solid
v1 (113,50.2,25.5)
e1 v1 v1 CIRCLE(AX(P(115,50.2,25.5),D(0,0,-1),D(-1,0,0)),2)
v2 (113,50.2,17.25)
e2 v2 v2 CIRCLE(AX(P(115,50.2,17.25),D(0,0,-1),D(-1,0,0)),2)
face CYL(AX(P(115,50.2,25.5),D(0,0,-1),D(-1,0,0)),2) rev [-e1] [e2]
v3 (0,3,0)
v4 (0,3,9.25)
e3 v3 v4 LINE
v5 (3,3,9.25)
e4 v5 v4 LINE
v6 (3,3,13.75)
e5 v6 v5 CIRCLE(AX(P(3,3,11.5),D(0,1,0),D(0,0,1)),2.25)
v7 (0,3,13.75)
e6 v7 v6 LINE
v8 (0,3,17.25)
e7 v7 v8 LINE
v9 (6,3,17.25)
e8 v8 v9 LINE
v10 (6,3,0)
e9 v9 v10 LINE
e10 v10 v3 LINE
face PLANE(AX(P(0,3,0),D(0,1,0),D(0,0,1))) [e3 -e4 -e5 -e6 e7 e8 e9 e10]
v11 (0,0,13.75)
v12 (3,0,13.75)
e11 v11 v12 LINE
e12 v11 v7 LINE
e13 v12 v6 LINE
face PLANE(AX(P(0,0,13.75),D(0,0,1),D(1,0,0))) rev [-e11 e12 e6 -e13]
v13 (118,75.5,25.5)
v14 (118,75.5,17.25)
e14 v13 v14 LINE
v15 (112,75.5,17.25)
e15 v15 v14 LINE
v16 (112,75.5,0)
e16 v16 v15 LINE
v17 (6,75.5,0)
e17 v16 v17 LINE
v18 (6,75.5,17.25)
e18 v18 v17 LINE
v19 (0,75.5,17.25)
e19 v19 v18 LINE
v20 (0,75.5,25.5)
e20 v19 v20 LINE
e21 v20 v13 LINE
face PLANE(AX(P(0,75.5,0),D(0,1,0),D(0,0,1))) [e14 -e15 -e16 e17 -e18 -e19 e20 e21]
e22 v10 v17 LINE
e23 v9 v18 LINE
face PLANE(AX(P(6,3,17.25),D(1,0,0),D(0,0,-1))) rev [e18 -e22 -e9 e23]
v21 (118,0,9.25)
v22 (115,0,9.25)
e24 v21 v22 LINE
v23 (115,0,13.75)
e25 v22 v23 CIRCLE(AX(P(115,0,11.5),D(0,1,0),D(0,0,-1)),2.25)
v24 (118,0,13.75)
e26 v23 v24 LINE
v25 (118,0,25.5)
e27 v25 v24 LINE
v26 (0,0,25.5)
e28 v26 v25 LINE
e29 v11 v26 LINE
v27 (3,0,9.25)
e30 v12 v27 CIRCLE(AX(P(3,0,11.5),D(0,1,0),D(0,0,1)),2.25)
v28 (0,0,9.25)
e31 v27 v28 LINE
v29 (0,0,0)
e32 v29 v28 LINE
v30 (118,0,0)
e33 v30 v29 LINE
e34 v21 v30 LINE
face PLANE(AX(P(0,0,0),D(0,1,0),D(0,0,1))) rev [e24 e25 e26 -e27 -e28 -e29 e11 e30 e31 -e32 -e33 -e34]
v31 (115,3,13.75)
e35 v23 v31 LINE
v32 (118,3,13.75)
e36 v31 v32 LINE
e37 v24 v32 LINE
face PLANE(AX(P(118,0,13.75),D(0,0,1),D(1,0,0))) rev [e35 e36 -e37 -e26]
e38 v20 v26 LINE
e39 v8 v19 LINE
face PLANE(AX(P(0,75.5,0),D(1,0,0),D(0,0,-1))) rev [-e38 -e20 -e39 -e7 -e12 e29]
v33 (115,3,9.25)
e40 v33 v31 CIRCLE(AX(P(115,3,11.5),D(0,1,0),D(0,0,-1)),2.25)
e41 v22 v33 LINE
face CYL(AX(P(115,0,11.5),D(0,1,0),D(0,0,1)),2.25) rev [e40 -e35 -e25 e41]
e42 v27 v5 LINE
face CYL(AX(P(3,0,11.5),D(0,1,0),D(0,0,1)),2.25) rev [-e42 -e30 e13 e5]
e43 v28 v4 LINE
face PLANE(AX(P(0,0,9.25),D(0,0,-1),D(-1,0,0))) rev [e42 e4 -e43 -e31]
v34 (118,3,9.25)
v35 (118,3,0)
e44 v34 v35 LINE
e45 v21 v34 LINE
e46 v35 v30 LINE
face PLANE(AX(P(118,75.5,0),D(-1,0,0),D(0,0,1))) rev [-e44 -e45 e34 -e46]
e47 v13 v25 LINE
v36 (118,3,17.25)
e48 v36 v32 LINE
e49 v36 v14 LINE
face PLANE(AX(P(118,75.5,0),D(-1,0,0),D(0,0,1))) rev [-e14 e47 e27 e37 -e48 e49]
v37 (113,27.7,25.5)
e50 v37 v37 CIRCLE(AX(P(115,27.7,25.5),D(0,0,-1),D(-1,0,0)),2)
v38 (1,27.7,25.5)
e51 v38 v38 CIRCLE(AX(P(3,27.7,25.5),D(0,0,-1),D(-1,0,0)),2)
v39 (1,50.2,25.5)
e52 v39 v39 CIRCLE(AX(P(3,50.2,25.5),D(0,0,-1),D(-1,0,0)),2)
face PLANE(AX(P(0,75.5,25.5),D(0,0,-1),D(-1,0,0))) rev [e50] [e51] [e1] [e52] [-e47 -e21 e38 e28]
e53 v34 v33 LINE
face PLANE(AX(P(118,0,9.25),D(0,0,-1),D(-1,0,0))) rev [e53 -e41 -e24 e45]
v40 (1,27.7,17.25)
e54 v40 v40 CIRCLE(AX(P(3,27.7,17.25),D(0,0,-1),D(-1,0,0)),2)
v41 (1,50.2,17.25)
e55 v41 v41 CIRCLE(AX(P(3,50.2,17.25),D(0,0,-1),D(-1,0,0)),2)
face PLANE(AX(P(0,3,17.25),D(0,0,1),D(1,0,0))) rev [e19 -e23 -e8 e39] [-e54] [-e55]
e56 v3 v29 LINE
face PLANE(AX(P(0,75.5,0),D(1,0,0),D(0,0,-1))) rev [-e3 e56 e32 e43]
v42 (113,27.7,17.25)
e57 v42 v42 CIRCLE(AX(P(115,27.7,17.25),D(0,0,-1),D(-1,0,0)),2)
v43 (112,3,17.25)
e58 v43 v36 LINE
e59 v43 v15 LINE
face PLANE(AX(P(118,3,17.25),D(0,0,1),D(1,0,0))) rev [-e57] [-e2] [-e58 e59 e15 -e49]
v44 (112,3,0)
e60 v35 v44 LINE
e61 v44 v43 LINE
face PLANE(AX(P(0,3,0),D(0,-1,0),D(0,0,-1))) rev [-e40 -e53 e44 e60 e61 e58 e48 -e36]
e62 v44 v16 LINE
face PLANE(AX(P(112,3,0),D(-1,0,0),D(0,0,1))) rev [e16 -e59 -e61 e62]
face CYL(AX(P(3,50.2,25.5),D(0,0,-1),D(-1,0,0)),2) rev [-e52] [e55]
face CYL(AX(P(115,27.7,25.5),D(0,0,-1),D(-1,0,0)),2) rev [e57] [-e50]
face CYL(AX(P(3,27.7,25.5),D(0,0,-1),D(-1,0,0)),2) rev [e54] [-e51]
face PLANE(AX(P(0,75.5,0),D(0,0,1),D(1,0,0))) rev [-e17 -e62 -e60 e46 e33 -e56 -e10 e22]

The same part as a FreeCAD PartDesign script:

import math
import FreeCAD as App
import Part
import Sketcher

V = App.Vector

doc = App.newDocument("Part")
params = doc.addObject("Spreadsheet::Sheet", "Params")
for row, (alias, value) in enumerate([
    ("sketch1_width", "118 mm"),
    ("sketch1_height", "25.5 mm"),
    ("pad1_length", "75.5 mm"),
    ("sketch2_width", "6 mm"),
    ("sketch2_height", "17.25 mm"),
    ("pocket1_length", "72.5 mm"),
    ("sketch3_width", "3 mm"),
    ("sketch3_radius", "2.25 mm"),
    ("sketch4_diameter", "4 mm"),
], start=1):
    params.set(f"A{row}", alias)
    params.set(f"B{row}", "=" + value)
    params.setAlias(f"B{row}", alias)

body = doc.addObject("PartDesign::Body", "Body")

# Sketch on XZ plane
sketch1 = body.newObject("Sketcher::SketchObject", "Sketch")
sketch1.AttachmentSupport = (doc.getObject("XZ_Plane"), [""])
sketch1.MapMode = "FlatFace"
sketch1.addGeometry(Part.LineSegment(V(0, 0, 0), V(0, 26, 0)), False)
sketch1.addGeometry(Part.LineSegment(V(0, 26, 0), V(118, 26, 0)), False)
sketch1.addGeometry(Part.LineSegment(V(118, 26, 0), V(118, 0, 0)), False)
sketch1.addGeometry(Part.LineSegment(V(118, 0, 0), V(0, 0, 0)), False)
sketch1.addConstraint(Sketcher.Constraint("Coincident", 0, 2, 1, 1))
sketch1.addConstraint(Sketcher.Constraint("Coincident", 1, 2, 2, 1))
sketch1.addConstraint(Sketcher.Constraint("Coincident", 2, 2, 3, 1))
sketch1.addConstraint(Sketcher.Constraint("Coincident", 3, 2, 0, 1))
sketch1.addConstraint(Sketcher.Constraint("Vertical", 0))
sketch1.addConstraint(Sketcher.Constraint("Horizontal", 1))
sketch1.addConstraint(Sketcher.Constraint("Vertical", 2))
sketch1.addConstraint(Sketcher.Constraint("Horizontal", 3))
sketch1.addConstraint(Sketcher.Constraint("Coincident", 3, 2, -1, 1))
sketch1.addConstraint(Sketcher.Constraint("DistanceX", 1, 1, 1, 2, 118.0))
sketch1.addConstraint(Sketcher.Constraint("DistanceY", 0, 1, 0, 2, 25.5))
sketch1.setExpression("Constraints[9]", "Params.sketch1_width")
sketch1.setExpression("Constraints[10]", "Params.sketch1_height")
pad1 = body.newObject("PartDesign::Pad", "Pad")
pad1.Profile = sketch1
pad1.setExpression("Length", "Params.pad1_length")
pad1.Reversed = True

# Sketch on XZ plane
sketch2 = body.newObject("Sketcher::SketchObject", "Sketch001")
sketch2.AttachmentSupport = (doc.getObject("XZ_Plane"), [""])
sketch2.MapMode = "FlatFace"
sketch2.AttachmentOffset = App.Placement(V(0, 0, -75.5), App.Rotation())
sketch2.addGeometry(Part.LineSegment(V(0, 0, 0), V(0, 17, 0)), False)
sketch2.addGeometry(Part.LineSegment(V(0, 17, 0), V(6, 17, 0)), False)
sketch2.addGeometry(Part.LineSegment(V(6, 17, 0), V(6, 0, 0)), False)
sketch2.addGeometry(Part.LineSegment(V(6, 0, 0), V(0, 0, 0)), False)
sketch2.addGeometry(Part.LineSegment(V(112, 0, 0), V(112, 17, 0)), False)
sketch2.addGeometry(Part.LineSegment(V(112, 17, 0), V(118, 17, 0)), False)
sketch2.addGeometry(Part.LineSegment(V(118, 17, 0), V(118, 0, 0)), False)
sketch2.addGeometry(Part.LineSegment(V(118, 0, 0), V(112, 0, 0)), False)
sketch2.addConstraint(Sketcher.Constraint("Coincident", 0, 2, 1, 1))
sketch2.addConstraint(Sketcher.Constraint("Coincident", 1, 2, 2, 1))
sketch2.addConstraint(Sketcher.Constraint("Coincident", 2, 2, 3, 1))
sketch2.addConstraint(Sketcher.Constraint("Coincident", 3, 2, 0, 1))
sketch2.addConstraint(Sketcher.Constraint("Coincident", 4, 2, 5, 1))
sketch2.addConstraint(Sketcher.Constraint("Coincident", 5, 2, 6, 1))
sketch2.addConstraint(Sketcher.Constraint("Coincident", 6, 2, 7, 1))
sketch2.addConstraint(Sketcher.Constraint("Coincident", 7, 2, 4, 1))
sketch2.addConstraint(Sketcher.Constraint("Vertical", 0))
sketch2.addConstraint(Sketcher.Constraint("Horizontal", 1))
sketch2.addConstraint(Sketcher.Constraint("Vertical", 2))
sketch2.addConstraint(Sketcher.Constraint("Horizontal", 3))
sketch2.addConstraint(Sketcher.Constraint("Vertical", 4))
sketch2.addConstraint(Sketcher.Constraint("Horizontal", 5))
sketch2.addConstraint(Sketcher.Constraint("Vertical", 6))
sketch2.addConstraint(Sketcher.Constraint("Horizontal", 7))
sketch2.addConstraint(Sketcher.Constraint("Coincident", 3, 2, -1, 1))
sketch2.addConstraint(Sketcher.Constraint("PointOnObject", 6, 2, -1))
sketch2.addConstraint(Sketcher.Constraint("Horizontal", 1, 2, 4, 2))
sketch2.addConstraint(Sketcher.Constraint("Equal", 3, 5))
sketch2.addConstraint(Sketcher.Constraint("DistanceX", 1, 1, 1, 2, 6.0))
sketch2.addConstraint(Sketcher.Constraint("DistanceX", -1, 1, 4, 2, 112.0))
sketch2.addConstraint(Sketcher.Constraint("DistanceY", 0, 1, 0, 2, 17.25))
sketch2.setExpression("Constraints[20]", "Params.sketch2_width")
sketch2.setExpression("Constraints[22]", "Params.sketch2_height")
pocket1 = body.newObject("PartDesign::Pocket", "Pocket")
pocket1.Profile = sketch2
pocket1.setExpression("Length", "Params.pocket1_length")
pocket1.Reversed = True

# Sketch on XZ plane
sketch3 = body.newObject("Sketcher::SketchObject", "Sketch002")
sketch3.AttachmentSupport = (doc.getObject("XZ_Plane"), [""])
sketch3.MapMode = "FlatFace"
sketch3.AttachmentOffset = App.Placement(V(0, 0, -3), App.Rotation())
sketch3.addGeometry(Part.LineSegment(V(0, 13.8, 0), V(3, 13.8, 0)), False)
sketch3.addGeometry(Part.ArcOfCircle(Part.Circle(V(3, 11.5, 0), V(0, 0, 1), 2.2), math.radians(-90), math.radians(90)), False)
sketch3.addGeometry(Part.LineSegment(V(3, 9.2, 0), V(0, 9.2, 0)), False)
sketch3.addGeometry(Part.LineSegment(V(0, 9.2, 0), V(0, 13.8, 0)), False)
sketch3.addGeometry(Part.LineSegment(V(118, 13.8, 0), V(118, 9.2, 0)), False)
sketch3.addGeometry(Part.LineSegment(V(118, 9.2, 0), V(115, 9.2, 0)), False)
sketch3.addGeometry(Part.ArcOfCircle(Part.Circle(V(115, 11.5, 0), V(0, 0, 1), 2.2), math.radians(90), math.radians(270)), False)
sketch3.addGeometry(Part.LineSegment(V(115, 13.8, 0), V(118, 13.8, 0)), False)
sketch3.addConstraint(Sketcher.Constraint("Tangent", 0, 2, 1, 2))
sketch3.addConstraint(Sketcher.Constraint("Tangent", 1, 1, 2, 1))
sketch3.addConstraint(Sketcher.Constraint("Coincident", 2, 2, 3, 1))
sketch3.addConstraint(Sketcher.Constraint("Coincident", 3, 2, 0, 1))
sketch3.addConstraint(Sketcher.Constraint("Coincident", 4, 2, 5, 1))
sketch3.addConstraint(Sketcher.Constraint("Tangent", 5, 2, 6, 2))
sketch3.addConstraint(Sketcher.Constraint("Tangent", 6, 1, 7, 1))
sketch3.addConstraint(Sketcher.Constraint("Coincident", 7, 2, 4, 1))
sketch3.addConstraint(Sketcher.Constraint("Horizontal", 0))
sketch3.addConstraint(Sketcher.Constraint("Horizontal", 2))
sketch3.addConstraint(Sketcher.Constraint("Vertical", 3))
sketch3.addConstraint(Sketcher.Constraint("Vertical", 4))
sketch3.addConstraint(Sketcher.Constraint("Horizontal", 5))
sketch3.addConstraint(Sketcher.Constraint("Horizontal", 7))
sketch3.addConstraint(Sketcher.Constraint("Equal", 1, 6))
sketch3.addConstraint(Sketcher.Constraint("PointOnObject", 2, 2, -2))
sketch3.addConstraint(Sketcher.Constraint("Horizontal", 1, 3, 6, 3))
sketch3.addConstraint(Sketcher.Constraint("Equal", 2, 5))
sketch3.addConstraint(Sketcher.Constraint("DistanceX", 0, 1, 0, 2, 3.0))
sketch3.addConstraint(Sketcher.Constraint("Radius", 1, 2.25))
sketch3.addConstraint(Sketcher.Constraint("DistanceX", -1, 1, 6, 3, 115.0))
sketch3.addConstraint(Sketcher.Constraint("DistanceY", -1, 1, 1, 3, 11.5))
sketch3.setExpression("Constraints[18]", "Params.sketch3_width")
sketch3.setExpression("Constraints[19]", "Params.sketch3_radius")
pocket2 = body.newObject("PartDesign::Pocket", "Pocket001")
pocket2.Profile = sketch3
pocket2.Type = "ThroughAll"
pocket2.Reversed = True

# Sketch on XY plane
sketch4 = body.newObject("Sketcher::SketchObject", "Sketch003")
sketch4.AttachmentSupport = (doc.getObject("XY_Plane"), [""])
sketch4.MapMode = "FlatFace"
sketch4.AttachmentOffset = App.Placement(V(0, 0, 17.25), App.Rotation())
sketch4.addGeometry(Part.Circle(V(115, 50.2, 0), V(0, 0, 1), 2), False)
sketch4.addGeometry(Part.Circle(V(115, 27.7, 0), V(0, 0, 1), 2), False)
sketch4.addGeometry(Part.Circle(V(3, 50.2, 0), V(0, 0, 1), 2), False)
sketch4.addGeometry(Part.Circle(V(3, 27.7, 0), V(0, 0, 1), 2), False)
sketch4.addConstraint(Sketcher.Constraint("Equal", 0, 1))
sketch4.addConstraint(Sketcher.Constraint("Equal", 1, 2))
sketch4.addConstraint(Sketcher.Constraint("Equal", 2, 3))
sketch4.addConstraint(Sketcher.Constraint("Horizontal", 0, 3, 2, 3))
sketch4.addConstraint(Sketcher.Constraint("Horizontal", 1, 3, 3, 3))
sketch4.addConstraint(Sketcher.Constraint("Vertical", 0, 3, 1, 3))
sketch4.addConstraint(Sketcher.Constraint("Vertical", 2, 3, 3, 3))
sketch4.addConstraint(Sketcher.Constraint("Diameter", 0, 4.0))
sketch4.addConstraint(Sketcher.Constraint("DistanceX", -1, 1, 0, 3, 115.0))
sketch4.addConstraint(Sketcher.Constraint("DistanceX", -1, 1, 2, 3, 3.0))
sketch4.addConstraint(Sketcher.Constraint("DistanceY", -1, 1, 0, 3, 50.2))
sketch4.addConstraint(Sketcher.Constraint("DistanceY", -1, 1, 1, 3, 27.7))
sketch4.setExpression("Constraints[7]", "Params.sketch4_diameter")
pocket3 = body.newObject("PartDesign::Pocket", "Pocket002")
pocket3.Profile = sketch4
pocket3.Type = "ThroughAll"
pocket3.Reversed = True

doc.recompute()
